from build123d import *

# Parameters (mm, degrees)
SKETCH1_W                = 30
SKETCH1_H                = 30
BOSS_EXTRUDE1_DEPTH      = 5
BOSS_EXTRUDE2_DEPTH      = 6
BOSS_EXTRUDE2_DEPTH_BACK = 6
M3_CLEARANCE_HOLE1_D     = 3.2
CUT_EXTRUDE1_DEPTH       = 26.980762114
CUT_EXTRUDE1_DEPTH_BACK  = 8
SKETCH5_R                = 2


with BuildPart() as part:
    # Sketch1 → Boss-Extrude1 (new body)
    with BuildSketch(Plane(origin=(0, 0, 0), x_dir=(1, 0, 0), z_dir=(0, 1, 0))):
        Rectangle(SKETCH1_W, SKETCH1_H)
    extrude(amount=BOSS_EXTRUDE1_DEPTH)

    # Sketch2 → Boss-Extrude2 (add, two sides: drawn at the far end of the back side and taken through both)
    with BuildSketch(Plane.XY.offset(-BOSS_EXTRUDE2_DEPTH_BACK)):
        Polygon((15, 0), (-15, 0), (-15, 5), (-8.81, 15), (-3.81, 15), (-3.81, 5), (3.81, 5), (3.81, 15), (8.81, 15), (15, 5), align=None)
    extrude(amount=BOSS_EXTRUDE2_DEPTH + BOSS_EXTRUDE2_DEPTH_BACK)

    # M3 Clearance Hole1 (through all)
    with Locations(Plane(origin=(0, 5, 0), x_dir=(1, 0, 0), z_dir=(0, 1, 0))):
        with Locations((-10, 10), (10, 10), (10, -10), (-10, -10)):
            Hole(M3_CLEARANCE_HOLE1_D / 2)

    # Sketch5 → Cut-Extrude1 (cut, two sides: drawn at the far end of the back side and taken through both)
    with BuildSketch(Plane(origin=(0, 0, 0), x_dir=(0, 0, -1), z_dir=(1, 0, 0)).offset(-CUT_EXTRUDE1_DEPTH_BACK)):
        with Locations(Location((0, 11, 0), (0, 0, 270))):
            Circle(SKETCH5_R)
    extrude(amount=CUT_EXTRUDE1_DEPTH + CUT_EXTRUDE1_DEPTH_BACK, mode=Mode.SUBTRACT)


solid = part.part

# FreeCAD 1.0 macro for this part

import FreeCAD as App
import Part
import Sketcher
from FreeCAD import Vector

doc = App.newDocument("Part")
body = doc.addObject("PartDesign::Body", "Body")

# Sketch on XZ plane
sketch1 = doc.addObject("Sketcher::SketchObject", "Sketch")
body.addObject(sketch1)
sketch1.AttachmentSupport = (doc.XZ_Plane, [""])
sketch1.MapMode = "FlatFace"
sketch1.addGeometry([
    Part.LineSegment(Vector(-15, -15, 0), Vector(-15, 15, 0)),
    Part.LineSegment(Vector(-15, 15, 0), Vector(15, 15, 0)),
    Part.LineSegment(Vector(15, 15, 0), Vector(15, -15, 0)),
    Part.LineSegment(Vector(15, -15, 0), Vector(-15, -15, 0)),
], False)
sketch1.addConstraint([
    Sketcher.Constraint("Coincident", 0, 2, 1, 1),
    Sketcher.Constraint("Coincident", 1, 2, 2, 1),
    Sketcher.Constraint("Coincident", 2, 2, 3, 1),
    Sketcher.Constraint("Coincident", 3, 2, 0, 1),
    Sketcher.Constraint("Vertical", 0),
    Sketcher.Constraint("Horizontal", 1),
    Sketcher.Constraint("Vertical", 2),
    Sketcher.Constraint("Horizontal", 3),
    Sketcher.Constraint("Symmetric", 0, 2, 2, 2, -1, 1),
    Sketcher.Constraint("Equal", 3, 0),
    Sketcher.Constraint("DistanceX", 1, 1, 1, 2, 30.0),
])
pad1 = doc.addObject("PartDesign::Pad", "Pad")
body.addObject(pad1)
pad1.Profile = sketch1
pad1.Length = 5
pad1.Reversed = True

# Sketch on XY plane
sketch2 = doc.addObject("Sketcher::SketchObject", "Sketch001")
body.addObject(sketch2)
sketch2.AttachmentSupport = (doc.XY_Plane, [""])
sketch2.MapMode = "FlatFace"
sketch2.addGeometry([
    Part.LineSegment(Vector(-15, 0, 0), Vector(15, 0, 0)),  # 0
    Part.LineSegment(Vector(15, 0, 0), Vector(15, 5, 0)),  # 1
    Part.LineSegment(Vector(15, 5, 0), Vector(8.81, 15, 0)),  # 2
    Part.LineSegment(Vector(8.81, 15, 0), Vector(3.81, 15, 0)),  # 3
    Part.LineSegment(Vector(3.81, 15, 0), Vector(3.81, 5, 0)),  # 4
    Part.LineSegment(Vector(3.81, 5, 0), Vector(-3.81, 5, 0)),  # 5
    Part.LineSegment(Vector(-3.81, 5, 0), Vector(-3.81, 15, 0)),  # 6
    Part.LineSegment(Vector(-3.81, 15, 0), Vector(-8.81, 15, 0)),  # 7
    Part.LineSegment(Vector(-8.81, 15, 0), Vector(-15, 5, 0)),  # 8
    Part.LineSegment(Vector(-15, 5, 0), Vector(-15, 0, 0)),  # 9
], False)
sketch2.addConstraint([
    Sketcher.Constraint("Coincident", 0, 2, 1, 1),
    Sketcher.Constraint("Coincident", 1, 2, 2, 1),
    Sketcher.Constraint("Coincident", 2, 2, 3, 1),
    Sketcher.Constraint("Coincident", 3, 2, 4, 1),
    Sketcher.Constraint("Coincident", 4, 2, 5, 1),
    Sketcher.Constraint("Coincident", 5, 2, 6, 1),
    Sketcher.Constraint("Coincident", 6, 2, 7, 1),
    Sketcher.Constraint("Coincident", 7, 2, 8, 1),
    Sketcher.Constraint("Coincident", 8, 2, 9, 1),
    Sketcher.Constraint("Coincident", 9, 2, 0, 1),
    Sketcher.Constraint("Horizontal", 0),
    Sketcher.Constraint("Vertical", 1),
    Sketcher.Constraint("Horizontal", 3),
    Sketcher.Constraint("Vertical", 4),
    Sketcher.Constraint("Horizontal", 5),
    Sketcher.Constraint("Vertical", 6),
    Sketcher.Constraint("Horizontal", 7),
    Sketcher.Constraint("Vertical", 9),
    Sketcher.Constraint("Symmetric", 0, 2, 9, 2, -1, 1),
    Sketcher.Constraint("Symmetric", 3, 2, 6, 2, -2),
    Sketcher.Constraint("Horizontal", 1, 2, 4, 2),
    Sketcher.Constraint("Horizontal", 5, 2, 8, 2),
    Sketcher.Constraint("Equal", 3, 7),
    Sketcher.Constraint("Equal", 7, 1),
    Sketcher.Constraint("DistanceX", 0, 1, 0, 2, 30.0),
    Sketcher.Constraint("DistanceX", 3, 2, 3, 1, 5.0),
    Sketcher.Constraint("DistanceY", 4, 2, 4, 1, 10.0),
    Sketcher.Constraint("DistanceX", 5, 2, 5, 1, 7.62),
])
pad2 = doc.addObject("PartDesign::Pad", "Pad001")
body.addObject(pad2)
pad2.Profile = sketch2
pad2.Type = "TwoLengths"
pad2.Length = 6
pad2.Length2 = 6

# Sketch on XZ plane
sketch3 = doc.addObject("Sketcher::SketchObject", "Sketch002")
body.addObject(sketch3)
sketch3.AttachmentSupport = (doc.XZ_Plane, [""])
sketch3.MapMode = "FlatFace"
sketch3.AttachmentOffset = App.Placement(Vector(0, 0, -5), App.Rotation())
sketch3.addGeometry([
    Part.Circle(Vector(-10, -10, 0), Vector(0, 0, 1), 1.6),
    Part.Circle(Vector(10, -10, 0), Vector(0, 0, 1), 1.6),
    Part.Circle(Vector(10, 10, 0), Vector(0, 0, 1), 1.6),
    Part.Circle(Vector(-10, 10, 0), Vector(0, 0, 1), 1.6),
], False)
sketch3.addConstraint([
    Sketcher.Constraint("Equal", 0, 1),
    Sketcher.Constraint("Equal", 1, 2),
    Sketcher.Constraint("Equal", 2, 3),
    Sketcher.Constraint("Symmetric", 0, 3, 2, 3, -1, 1),
    Sketcher.Constraint("Symmetric", 1, 3, 3, 3, -1, 1),
    Sketcher.Constraint("Symmetric", 0, 3, 1, 3, -2),
    Sketcher.Constraint("Diameter", 0, 3.2),
    Sketcher.Constraint("DistanceX", 0, 3, -1, 1, 10.0),
    Sketcher.Constraint("DistanceY", 0, 3, -1, 1, 10.0),
])
doc.recompute()
hole = doc.addObject("PartDesign::Hole", "Hole")
body.addObject(hole)
hole.Profile = sketch3
hole.ThreadType = "None"
hole.Diameter = 3.2
hole.DepthType = "ThroughAll"
hole.Reversed = True

# Sketch on YZ plane
sketch4 = doc.addObject("Sketcher::SketchObject", "Sketch003")
body.addObject(sketch4)
sketch4.AttachmentSupport = (doc.YZ_Plane, [""])
sketch4.MapMode = "FlatFace"
sketch4.addGeometry(Part.Circle(Vector(11, 0, 0), Vector(0, 0, 1), 2), False)
sketch4.addConstraint([
    Sketcher.Constraint("PointOnObject", 0, 3, -1),
    Sketcher.Constraint("Diameter", 0, 4.0),
    Sketcher.Constraint("DistanceX", -1, 1, 0, 3, 11.0),
])
pocket1 = doc.addObject("PartDesign::Pocket", "Pocket")
body.addObject(pocket1)
pocket1.Profile = sketch4
pocket1.Type = "TwoLengths"
pocket1.Length = 26.980762
pocket1.Length2 = 8
pocket1.Reversed = True

doc.recompute()
